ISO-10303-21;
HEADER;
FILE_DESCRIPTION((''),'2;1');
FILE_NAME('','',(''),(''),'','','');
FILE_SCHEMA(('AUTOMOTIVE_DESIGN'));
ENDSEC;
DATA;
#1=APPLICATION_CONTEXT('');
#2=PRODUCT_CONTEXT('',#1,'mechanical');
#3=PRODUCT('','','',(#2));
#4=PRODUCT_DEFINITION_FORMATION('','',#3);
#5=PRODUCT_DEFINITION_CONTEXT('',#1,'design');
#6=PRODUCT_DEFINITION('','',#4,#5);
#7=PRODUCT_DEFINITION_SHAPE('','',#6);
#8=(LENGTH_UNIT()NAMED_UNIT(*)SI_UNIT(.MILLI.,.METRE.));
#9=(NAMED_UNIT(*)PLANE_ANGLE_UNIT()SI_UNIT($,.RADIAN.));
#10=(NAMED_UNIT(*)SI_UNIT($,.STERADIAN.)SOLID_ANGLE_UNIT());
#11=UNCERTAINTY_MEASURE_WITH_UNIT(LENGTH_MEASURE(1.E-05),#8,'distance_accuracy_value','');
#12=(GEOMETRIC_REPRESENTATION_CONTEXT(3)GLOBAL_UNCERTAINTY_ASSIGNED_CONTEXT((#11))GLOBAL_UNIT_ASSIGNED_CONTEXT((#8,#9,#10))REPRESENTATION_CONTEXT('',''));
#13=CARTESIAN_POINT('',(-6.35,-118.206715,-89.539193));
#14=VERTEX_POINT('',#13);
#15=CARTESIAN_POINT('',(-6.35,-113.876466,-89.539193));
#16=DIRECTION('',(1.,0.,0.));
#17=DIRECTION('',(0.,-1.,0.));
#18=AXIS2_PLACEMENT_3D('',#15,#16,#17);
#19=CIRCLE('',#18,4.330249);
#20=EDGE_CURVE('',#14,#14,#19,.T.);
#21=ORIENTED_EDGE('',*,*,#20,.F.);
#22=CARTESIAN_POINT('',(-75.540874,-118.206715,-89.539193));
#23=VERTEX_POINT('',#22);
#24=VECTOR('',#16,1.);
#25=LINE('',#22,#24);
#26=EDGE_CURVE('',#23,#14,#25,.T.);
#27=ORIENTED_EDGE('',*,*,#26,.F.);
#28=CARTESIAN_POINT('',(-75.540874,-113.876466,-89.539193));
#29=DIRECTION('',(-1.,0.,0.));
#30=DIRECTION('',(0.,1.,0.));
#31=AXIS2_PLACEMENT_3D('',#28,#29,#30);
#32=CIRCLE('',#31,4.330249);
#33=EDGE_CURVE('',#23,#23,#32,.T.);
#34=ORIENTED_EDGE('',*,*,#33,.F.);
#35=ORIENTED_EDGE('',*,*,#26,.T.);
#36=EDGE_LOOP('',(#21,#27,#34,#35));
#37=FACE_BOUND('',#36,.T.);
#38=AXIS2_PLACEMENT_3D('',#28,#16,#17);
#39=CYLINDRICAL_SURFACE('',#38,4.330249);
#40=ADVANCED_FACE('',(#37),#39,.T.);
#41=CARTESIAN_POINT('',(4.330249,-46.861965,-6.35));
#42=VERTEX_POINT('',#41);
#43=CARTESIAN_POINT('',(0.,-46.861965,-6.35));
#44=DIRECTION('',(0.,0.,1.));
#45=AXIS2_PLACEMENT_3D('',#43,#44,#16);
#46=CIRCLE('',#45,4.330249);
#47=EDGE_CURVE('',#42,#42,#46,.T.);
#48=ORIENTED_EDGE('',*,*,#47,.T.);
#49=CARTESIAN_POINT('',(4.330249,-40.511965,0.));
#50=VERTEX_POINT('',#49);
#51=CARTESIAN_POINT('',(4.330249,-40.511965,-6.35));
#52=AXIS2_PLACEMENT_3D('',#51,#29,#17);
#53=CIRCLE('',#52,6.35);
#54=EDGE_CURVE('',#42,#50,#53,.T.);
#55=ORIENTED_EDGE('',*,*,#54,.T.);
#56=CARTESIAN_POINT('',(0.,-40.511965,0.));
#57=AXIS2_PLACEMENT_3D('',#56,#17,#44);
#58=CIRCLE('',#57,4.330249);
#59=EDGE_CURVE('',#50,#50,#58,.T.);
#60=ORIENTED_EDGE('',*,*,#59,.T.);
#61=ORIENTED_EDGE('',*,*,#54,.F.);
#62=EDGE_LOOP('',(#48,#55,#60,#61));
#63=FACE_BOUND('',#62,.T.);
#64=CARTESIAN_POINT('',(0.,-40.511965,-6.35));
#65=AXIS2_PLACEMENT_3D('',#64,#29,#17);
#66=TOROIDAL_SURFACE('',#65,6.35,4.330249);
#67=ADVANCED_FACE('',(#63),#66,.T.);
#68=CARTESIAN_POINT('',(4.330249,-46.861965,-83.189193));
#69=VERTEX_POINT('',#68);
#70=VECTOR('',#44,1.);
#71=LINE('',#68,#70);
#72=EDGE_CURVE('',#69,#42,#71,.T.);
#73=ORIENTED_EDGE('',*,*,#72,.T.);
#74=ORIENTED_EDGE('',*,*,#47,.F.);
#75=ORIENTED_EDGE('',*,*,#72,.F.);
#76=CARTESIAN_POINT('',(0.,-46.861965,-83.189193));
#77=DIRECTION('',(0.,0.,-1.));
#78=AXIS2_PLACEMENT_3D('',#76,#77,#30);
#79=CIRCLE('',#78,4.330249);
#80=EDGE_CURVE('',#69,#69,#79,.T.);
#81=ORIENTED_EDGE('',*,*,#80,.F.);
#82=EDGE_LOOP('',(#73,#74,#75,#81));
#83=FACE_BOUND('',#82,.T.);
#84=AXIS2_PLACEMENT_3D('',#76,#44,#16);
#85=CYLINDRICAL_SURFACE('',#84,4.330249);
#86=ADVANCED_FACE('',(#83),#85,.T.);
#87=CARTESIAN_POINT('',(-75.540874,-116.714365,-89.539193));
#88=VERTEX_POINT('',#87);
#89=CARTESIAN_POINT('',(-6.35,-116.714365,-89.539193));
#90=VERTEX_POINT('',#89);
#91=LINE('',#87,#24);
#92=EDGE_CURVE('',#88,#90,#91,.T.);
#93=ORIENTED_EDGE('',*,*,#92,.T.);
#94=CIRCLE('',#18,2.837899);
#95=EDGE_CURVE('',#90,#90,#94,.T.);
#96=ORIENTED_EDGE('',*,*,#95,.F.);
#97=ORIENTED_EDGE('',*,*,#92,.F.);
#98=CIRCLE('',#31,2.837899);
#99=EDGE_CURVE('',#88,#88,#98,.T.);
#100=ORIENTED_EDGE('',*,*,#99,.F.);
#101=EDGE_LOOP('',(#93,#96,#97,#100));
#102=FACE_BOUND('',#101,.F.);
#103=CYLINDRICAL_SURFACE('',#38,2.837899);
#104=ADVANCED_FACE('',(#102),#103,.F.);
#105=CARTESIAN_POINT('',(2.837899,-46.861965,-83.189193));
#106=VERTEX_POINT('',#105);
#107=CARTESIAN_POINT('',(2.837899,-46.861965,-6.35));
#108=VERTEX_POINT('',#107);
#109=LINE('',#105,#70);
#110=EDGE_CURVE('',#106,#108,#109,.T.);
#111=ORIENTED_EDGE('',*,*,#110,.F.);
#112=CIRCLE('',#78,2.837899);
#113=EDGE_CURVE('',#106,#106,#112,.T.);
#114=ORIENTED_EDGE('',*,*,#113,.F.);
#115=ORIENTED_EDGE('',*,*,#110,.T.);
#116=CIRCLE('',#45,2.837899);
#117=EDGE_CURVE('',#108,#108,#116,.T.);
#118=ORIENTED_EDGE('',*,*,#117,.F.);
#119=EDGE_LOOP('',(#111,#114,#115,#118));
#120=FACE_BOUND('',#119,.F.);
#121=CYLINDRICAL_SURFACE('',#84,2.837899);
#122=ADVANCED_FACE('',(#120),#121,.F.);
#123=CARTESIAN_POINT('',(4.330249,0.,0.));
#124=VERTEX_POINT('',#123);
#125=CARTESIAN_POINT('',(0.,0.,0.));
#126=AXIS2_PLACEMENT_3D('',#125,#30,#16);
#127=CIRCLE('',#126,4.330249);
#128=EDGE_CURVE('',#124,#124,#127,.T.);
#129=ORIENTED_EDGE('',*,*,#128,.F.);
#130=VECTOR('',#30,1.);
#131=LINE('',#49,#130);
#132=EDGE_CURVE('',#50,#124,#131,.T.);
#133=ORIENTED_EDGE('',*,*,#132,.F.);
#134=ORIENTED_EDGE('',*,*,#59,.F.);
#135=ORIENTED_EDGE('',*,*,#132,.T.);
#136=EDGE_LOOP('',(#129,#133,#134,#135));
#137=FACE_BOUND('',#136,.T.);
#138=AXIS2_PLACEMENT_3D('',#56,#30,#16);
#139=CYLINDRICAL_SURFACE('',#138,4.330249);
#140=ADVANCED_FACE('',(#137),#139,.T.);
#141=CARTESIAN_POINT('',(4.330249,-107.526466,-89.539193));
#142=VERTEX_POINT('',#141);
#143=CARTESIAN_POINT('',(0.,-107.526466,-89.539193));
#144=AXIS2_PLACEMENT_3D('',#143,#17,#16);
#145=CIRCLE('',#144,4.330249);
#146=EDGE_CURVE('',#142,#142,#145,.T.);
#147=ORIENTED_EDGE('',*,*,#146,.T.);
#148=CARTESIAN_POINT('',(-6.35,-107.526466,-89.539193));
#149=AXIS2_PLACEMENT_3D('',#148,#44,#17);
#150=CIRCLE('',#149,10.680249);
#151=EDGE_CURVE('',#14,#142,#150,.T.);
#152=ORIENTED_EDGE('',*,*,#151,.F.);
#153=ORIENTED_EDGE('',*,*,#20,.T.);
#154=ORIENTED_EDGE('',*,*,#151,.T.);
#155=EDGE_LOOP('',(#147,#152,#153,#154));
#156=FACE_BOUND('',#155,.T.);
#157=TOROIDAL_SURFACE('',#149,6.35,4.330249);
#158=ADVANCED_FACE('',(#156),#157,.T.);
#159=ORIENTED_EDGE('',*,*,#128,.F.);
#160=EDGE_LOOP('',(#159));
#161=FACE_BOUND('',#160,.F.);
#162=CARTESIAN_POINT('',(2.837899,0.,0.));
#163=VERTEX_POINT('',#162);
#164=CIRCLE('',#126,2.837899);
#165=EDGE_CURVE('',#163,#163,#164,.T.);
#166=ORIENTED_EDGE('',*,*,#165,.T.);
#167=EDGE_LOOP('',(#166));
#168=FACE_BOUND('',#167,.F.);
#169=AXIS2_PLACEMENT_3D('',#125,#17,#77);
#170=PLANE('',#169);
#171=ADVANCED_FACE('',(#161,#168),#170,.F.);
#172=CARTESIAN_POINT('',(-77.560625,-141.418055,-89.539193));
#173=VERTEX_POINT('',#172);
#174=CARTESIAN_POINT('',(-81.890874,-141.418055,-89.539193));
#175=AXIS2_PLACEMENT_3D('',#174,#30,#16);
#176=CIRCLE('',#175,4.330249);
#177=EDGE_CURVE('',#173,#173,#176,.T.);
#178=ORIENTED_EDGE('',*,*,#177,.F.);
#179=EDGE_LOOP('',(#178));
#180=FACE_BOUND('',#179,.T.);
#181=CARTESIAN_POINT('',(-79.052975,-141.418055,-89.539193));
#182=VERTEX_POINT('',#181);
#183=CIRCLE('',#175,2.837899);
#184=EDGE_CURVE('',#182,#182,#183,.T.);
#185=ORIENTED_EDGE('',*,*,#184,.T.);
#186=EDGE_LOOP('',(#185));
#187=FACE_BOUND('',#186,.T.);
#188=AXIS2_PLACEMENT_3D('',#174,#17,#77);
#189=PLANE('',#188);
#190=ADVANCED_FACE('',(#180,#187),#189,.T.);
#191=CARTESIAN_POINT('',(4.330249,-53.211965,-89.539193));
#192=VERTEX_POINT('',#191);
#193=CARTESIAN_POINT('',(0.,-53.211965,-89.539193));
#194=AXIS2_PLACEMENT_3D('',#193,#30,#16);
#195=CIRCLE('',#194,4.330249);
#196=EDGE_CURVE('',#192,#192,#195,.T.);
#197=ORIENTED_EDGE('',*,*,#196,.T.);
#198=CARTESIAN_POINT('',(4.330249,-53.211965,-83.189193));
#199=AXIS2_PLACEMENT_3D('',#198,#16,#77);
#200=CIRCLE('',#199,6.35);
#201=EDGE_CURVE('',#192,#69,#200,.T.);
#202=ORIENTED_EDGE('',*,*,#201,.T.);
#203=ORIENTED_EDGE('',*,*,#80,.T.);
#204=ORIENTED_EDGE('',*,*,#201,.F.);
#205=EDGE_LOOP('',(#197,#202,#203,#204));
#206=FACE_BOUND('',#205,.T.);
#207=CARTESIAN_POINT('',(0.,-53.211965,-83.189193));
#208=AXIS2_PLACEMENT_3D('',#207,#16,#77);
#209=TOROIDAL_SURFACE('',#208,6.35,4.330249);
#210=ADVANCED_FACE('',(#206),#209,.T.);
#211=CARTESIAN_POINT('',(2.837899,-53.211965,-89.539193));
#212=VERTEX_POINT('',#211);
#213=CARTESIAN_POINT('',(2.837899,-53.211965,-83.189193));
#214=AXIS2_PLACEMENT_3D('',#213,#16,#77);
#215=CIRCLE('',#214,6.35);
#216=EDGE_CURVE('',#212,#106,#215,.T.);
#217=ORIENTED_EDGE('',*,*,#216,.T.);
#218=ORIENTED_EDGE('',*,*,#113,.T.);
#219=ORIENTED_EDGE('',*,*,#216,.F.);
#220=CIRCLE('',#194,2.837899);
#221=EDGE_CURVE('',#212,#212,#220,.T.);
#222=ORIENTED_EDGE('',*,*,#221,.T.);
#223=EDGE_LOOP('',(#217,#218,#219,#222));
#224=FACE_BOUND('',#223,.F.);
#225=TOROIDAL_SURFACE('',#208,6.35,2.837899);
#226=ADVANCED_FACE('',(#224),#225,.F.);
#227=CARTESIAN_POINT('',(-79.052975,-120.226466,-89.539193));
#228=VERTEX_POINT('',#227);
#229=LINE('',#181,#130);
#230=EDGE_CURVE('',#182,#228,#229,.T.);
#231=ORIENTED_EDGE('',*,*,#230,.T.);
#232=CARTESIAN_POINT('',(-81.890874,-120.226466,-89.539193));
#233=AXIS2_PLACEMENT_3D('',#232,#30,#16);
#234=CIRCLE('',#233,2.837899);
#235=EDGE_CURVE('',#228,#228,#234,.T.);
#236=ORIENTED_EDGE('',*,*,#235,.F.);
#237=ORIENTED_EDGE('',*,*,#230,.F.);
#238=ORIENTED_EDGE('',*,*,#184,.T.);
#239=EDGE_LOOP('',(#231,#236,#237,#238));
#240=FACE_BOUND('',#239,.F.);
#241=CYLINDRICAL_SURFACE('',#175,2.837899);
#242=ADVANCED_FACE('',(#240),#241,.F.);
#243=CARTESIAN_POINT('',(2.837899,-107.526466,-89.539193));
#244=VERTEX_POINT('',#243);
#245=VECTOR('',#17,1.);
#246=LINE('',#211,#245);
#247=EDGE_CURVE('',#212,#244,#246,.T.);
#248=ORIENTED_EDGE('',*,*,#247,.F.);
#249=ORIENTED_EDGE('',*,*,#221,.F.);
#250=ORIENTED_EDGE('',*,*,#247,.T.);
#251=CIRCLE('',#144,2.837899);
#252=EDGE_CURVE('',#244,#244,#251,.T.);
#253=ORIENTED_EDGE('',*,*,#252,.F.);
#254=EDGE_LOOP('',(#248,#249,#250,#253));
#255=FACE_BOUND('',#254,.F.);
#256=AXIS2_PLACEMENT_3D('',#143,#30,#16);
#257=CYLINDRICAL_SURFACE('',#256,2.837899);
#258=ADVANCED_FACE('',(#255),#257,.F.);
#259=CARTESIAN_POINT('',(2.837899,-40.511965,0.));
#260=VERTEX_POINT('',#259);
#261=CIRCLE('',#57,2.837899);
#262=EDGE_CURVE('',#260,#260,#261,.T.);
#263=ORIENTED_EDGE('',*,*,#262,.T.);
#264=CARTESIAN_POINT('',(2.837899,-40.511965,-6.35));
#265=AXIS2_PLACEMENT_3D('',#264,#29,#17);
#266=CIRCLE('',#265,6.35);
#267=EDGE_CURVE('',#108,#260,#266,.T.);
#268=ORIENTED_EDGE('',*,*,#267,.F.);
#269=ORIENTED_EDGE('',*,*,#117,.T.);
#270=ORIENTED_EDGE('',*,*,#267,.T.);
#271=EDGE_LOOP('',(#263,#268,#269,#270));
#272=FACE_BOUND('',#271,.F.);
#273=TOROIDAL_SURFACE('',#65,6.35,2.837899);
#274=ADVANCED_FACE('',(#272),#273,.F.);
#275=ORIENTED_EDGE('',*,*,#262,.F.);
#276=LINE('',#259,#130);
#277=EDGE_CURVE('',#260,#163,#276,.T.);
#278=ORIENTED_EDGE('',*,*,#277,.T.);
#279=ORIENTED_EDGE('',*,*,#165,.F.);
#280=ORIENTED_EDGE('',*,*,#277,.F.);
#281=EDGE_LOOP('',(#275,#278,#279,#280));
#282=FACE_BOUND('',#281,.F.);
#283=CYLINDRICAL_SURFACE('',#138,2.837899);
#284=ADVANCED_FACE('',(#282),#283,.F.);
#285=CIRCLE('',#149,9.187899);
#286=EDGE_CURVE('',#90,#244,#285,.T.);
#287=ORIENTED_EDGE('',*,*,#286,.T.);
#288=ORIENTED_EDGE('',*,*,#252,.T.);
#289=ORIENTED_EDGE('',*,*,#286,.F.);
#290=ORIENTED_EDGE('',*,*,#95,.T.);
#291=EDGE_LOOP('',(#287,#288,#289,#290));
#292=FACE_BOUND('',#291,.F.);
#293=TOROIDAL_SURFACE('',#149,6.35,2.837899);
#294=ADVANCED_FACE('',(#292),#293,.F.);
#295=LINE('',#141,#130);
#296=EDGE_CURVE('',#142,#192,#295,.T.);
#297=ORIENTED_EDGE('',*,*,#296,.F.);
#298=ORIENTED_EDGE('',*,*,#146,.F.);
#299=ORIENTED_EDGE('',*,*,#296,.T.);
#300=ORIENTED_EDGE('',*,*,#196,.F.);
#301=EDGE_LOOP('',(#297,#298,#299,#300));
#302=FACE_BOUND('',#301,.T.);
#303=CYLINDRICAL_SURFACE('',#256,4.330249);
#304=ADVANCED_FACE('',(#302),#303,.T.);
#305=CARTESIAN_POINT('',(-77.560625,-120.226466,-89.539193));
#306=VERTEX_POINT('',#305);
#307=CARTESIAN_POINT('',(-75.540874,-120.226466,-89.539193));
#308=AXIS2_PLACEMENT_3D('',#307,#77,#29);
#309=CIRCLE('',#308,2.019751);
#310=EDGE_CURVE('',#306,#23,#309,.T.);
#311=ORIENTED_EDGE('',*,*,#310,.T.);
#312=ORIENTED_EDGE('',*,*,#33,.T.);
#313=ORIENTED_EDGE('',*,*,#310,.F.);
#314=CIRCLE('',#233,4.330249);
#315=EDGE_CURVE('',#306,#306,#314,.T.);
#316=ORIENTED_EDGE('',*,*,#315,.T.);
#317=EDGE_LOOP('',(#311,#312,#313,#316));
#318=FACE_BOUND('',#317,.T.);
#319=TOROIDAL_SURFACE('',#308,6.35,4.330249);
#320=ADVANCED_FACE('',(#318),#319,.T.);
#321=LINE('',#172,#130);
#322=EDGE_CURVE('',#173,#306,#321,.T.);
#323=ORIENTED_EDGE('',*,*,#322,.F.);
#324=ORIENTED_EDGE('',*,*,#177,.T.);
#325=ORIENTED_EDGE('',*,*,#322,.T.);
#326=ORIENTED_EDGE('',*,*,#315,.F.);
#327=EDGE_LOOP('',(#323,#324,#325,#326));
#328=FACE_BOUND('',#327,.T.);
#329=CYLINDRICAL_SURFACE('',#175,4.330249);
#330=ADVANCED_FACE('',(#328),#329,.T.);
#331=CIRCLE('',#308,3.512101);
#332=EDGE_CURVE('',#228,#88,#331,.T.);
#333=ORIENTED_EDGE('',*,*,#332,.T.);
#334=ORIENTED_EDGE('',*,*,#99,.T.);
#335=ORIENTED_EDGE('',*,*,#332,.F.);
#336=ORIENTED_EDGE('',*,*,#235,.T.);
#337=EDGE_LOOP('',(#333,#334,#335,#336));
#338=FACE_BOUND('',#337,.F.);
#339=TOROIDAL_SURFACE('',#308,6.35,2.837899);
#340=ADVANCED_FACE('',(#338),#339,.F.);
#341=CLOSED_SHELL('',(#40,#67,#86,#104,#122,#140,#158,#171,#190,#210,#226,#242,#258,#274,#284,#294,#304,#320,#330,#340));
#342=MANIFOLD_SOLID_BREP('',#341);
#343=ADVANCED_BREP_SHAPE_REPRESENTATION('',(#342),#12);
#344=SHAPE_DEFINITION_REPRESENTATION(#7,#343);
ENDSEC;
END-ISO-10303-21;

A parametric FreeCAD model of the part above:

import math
import FreeCAD as App
import Part
import Sketcher
Q = App.Units.Quantity

doc = App.newDocument("Part")
body = doc.addObject("PartDesign::Body", "Body")

# Sketch on XZ plane
sketch1 = body.newObject("Sketcher::SketchObject", "Sketch")
sketch1.AttachmentSupport = (doc.getObject("XZ_Plane"), [""])
sketch1.MapMode = "FlatFace"
sketch1.addGeometry([
    Part.Circle(App.Vector(0, 0, 0), App.Vector(0, 0, 1), 4.330249),
    Part.Circle(App.Vector(0, 0, 0), App.Vector(0, 0, 1), 2.837899),
], False)
sketch1.addConstraint([
    Sketcher.Constraint("Coincident", 0, 3, -1, 1),
    Sketcher.Constraint("Coincident", 1, 3, -1, 1),
    Sketcher.Constraint("Diameter", 0, Q("8.660497 mm")),
    Sketcher.Constraint("Diameter", 1, Q("5.675798 mm")),
])

# Sketch on YZ plane
sketch2 = body.newObject("Sketcher::SketchObject", "Sketch001")
sketch2.AttachmentSupport = (doc.getObject("YZ_Plane"), [""])
sketch2.MapMode = "FlatFace"
sketch2.addGeometry([
    Part.LineSegment(App.Vector(-93.201607, -89.539193, 0), App.Vector(-53.211965, -89.539193, 0)),  # 0
    Part.ArcOfCircle(Part.Circle(App.Vector(-53.211965, -83.189193, 0), App.Vector(0, 0, 1), 6.35), math.radians(-90), math.radians(0)),  # 1
    Part.LineSegment(App.Vector(-46.861965, -83.189193, 0), App.Vector(-46.861965, -6.35, 0)),  # 2
    Part.ArcOfCircle(Part.Circle(App.Vector(-40.511965, -6.35, 0), App.Vector(0, 0, 1), 6.35), math.radians(90), math.radians(180)),  # 3
    Part.LineSegment(App.Vector(-40.511965, 0, 0), App.Vector(0, 0, 0)),  # 4
], False)
sketch2.addConstraint([
    Sketcher.Constraint("Tangent", 0, 2, 1, 1),
    Sketcher.Constraint("Tangent", 1, 2, 2, 1),
    Sketcher.Constraint("Tangent", 2, 2, 3, 2),
    Sketcher.Constraint("Tangent", 3, 1, 4, 1),
    Sketcher.Constraint("Horizontal", 0),
    Sketcher.Constraint("Vertical", 2),
    Sketcher.Constraint("Horizontal", 4),
    Sketcher.Constraint("Coincident", 4, 2, -1, 1),
    Sketcher.Constraint("Equal", 1, 3),
    Sketcher.Constraint("Radius", 1, Q("0.25 in")),
    Sketcher.Constraint("DistanceX", 0, 1, 0, 2, Q("39.989642 mm")),
    Sketcher.Constraint("DistanceX", 4, 1, 4, 2, Q("40.511965 mm")),
    Sketcher.Constraint("DistanceY", 2, 1, 2, 2, Q("76.839193 mm")),
])
doc.recompute()

additivepipe = body.newObject("PartDesign::AdditivePipe", "AdditivePipe")
additivepipe.Profile = sketch1
additivepipe.Spine = (sketch2, ["Edge1", "Edge2", "Edge3", "Edge4", "Edge5"])

# Sketch on XZ plane
sketch3 = body.newObject("Sketcher::SketchObject", "Sketch002")
sketch3.AttachmentSupport = (doc.getObject("XZ_Plane"), [""])
sketch3.MapMode = "FlatFace"
sketch3.AttachmentOffset = App.Placement(App.Vector(0, 0, 93.201607), App.Rotation())
sketch3.addGeometry([
    Part.Circle(App.Vector(0, -89.539193, 0), App.Vector(0, 0, 1), 4.330249),
    Part.Circle(App.Vector(0, -89.539193, 0), App.Vector(0, 0, 1), 2.837899),
], False)
sketch3.addConstraint([
    Sketcher.Constraint("Coincident", 1, 3, 0, 3),
    Sketcher.Constraint("PointOnObject", 0, 3, -2),
    Sketcher.Constraint("Diameter", 0, Q("8.660497 mm")),
    Sketcher.Constraint("Diameter", 1, Q("5.675798 mm")),
    Sketcher.Constraint("DistanceY", 0, 3, -1, 1, Q("89.539193 mm")),
])

# Sketch on XY plane
sketch4 = body.newObject("Sketcher::SketchObject", "Sketch003")
sketch4.AttachmentSupport = (doc.getObject("XY_Plane"), [""])
sketch4.MapMode = "FlatFace"
sketch4.AttachmentOffset = App.Placement(App.Vector(0, 0, -89.539193), App.Rotation())
sketch4.addGeometry([
    Part.LineSegment(App.Vector(-81.890874, -141.418055, 0), App.Vector(-81.890874, -120.226466, 0)),  # 0
    Part.ArcOfCircle(Part.Circle(App.Vector(-75.540874, -120.226466, 0), App.Vector(0, 0, 1), 6.35), math.radians(90), math.radians(180)),  # 1
    Part.LineSegment(App.Vector(-75.540874, -113.876466, 0), App.Vector(-6.35, -113.876466, 0)),  # 2
    Part.ArcOfCircle(Part.Circle(App.Vector(-6.35, -107.526466, 0), App.Vector(0, 0, 1), 6.35), math.radians(-90), math.radians(0)),  # 3
    Part.LineSegment(App.Vector(0, -107.526466, 0), App.Vector(0, -93.201607, 0)),  # 4
], False)
sketch4.addConstraint([
    Sketcher.Constraint("Tangent", 0, 2, 1, 2),
    Sketcher.Constraint("Tangent", 1, 1, 2, 1),
    Sketcher.Constraint("Tangent", 2, 2, 3, 1),
    Sketcher.Constraint("Tangent", 3, 2, 4, 1),
    Sketcher.Constraint("Vertical", 0),
    Sketcher.Constraint("Horizontal", 2),
    Sketcher.Constraint("Vertical", 4),
    Sketcher.Constraint("Equal", 1, 3),
    Sketcher.Constraint("PointOnObject", 3, 2, -2),
    Sketcher.Constraint("Radius", 1, Q("0.25 in")),
    Sketcher.Constraint("DistanceY", 0, 1, 0, 2, Q("21.191588 mm")),
    Sketcher.Constraint("DistanceY", 4, 1, 4, 2, Q("14.324859 mm")),
    Sketcher.Constraint("DistanceX", 2, 1, 2, 2, Q("69.190874 mm")),
    Sketcher.Constraint("DistanceY", 1, 3, -1, 1, Q("120.226466 mm")),
])
doc.recompute()

additivepipe2 = body.newObject("PartDesign::AdditivePipe", "AdditivePipe001")
additivepipe2.Profile = sketch3
additivepipe2.Spine = (sketch4, ["Edge1", "Edge2", "Edge3", "Edge4", "Edge5"])

doc.recompute()
